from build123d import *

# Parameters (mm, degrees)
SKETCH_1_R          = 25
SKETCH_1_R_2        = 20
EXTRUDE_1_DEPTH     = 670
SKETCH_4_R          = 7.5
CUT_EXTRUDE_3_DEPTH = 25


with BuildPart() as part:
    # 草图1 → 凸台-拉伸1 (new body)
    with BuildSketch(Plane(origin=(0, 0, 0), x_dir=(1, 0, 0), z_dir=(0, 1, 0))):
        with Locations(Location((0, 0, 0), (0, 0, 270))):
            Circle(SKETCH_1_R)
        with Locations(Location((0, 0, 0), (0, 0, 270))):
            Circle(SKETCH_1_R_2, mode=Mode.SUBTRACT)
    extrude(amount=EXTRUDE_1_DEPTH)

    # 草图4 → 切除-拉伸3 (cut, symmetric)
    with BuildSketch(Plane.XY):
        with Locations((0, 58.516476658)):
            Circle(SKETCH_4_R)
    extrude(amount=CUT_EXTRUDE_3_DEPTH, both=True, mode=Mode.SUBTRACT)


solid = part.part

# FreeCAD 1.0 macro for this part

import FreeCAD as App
import Part
import Sketcher
from FreeCAD import Vector
Q = App.Units.Quantity

doc = App.newDocument("Part")
params = doc.addObject("Spreadsheet::Sheet", "Params")
for row, (alias, value) in enumerate([
    ("sketch1_diameter", "50 mm"),
    ("sketch1_diameter2", "40 mm"),
    ("pad1_length", "670 mm"),
    ("sketch2_diameter", "15 mm"),
    ("pocket1_length", "50 mm"),
], start=1):
    params.set(f"A{row}", alias)
    params.set(f"B{row}", "=" + value)
    params.setAlias(f"B{row}", alias)

body = doc.addObject("PartDesign::Body", "Body")

# Sketch on XZ plane
sketch1 = body.newObject("Sketcher::SketchObject", "Sketch")
sketch1.AttachmentSupport = (doc.getObject("XZ_Plane"), [""])
sketch1.MapMode = "FlatFace"
sketch1.addGeometry(Part.Circle(Vector(0, 0, 0), Vector(0, 0, 1), 25), False)
sketch1.addGeometry(Part.Circle(Vector(0, 0, 0), Vector(0, 0, 1), 20), False)
sketch1.addConstraint(Sketcher.Constraint("Coincident", 0, 3, -1, 1))
sketch1.addConstraint(Sketcher.Constraint("Coincident", 1, 3, -1, 1))
sketch1.addConstraint(Sketcher.Constraint("Diameter", 0, Q("50 mm")))
sketch1.addConstraint(Sketcher.Constraint("Diameter", 1, Q("40 mm")))
sketch1.setExpression("Constraints[2]", "Params.sketch1_diameter")
sketch1.setExpression("Constraints[3]", "Params.sketch1_diameter2")
pad1 = body.newObject("PartDesign::Pad", "Pad")
pad1.Profile = sketch1
pad1.setExpression("Length", "Params.pad1_length")
pad1.Reversed = True

# Sketch on XY plane
sketch2 = body.newObject("Sketcher::SketchObject", "Sketch001")
sketch2.AttachmentSupport = (doc.getObject("XY_Plane"), [""])
sketch2.MapMode = "FlatFace"
sketch2.addGeometry(Part.Circle(Vector(0, 59, 0), Vector(0, 0, 1), 8), False)
sketch2.addConstraint(Sketcher.Constraint("PointOnObject", 0, 3, -2))
sketch2.addConstraint(Sketcher.Constraint("Diameter", 0, Q("15 mm")))
sketch2.addConstraint(Sketcher.Constraint("DistanceY", -1, 1, 0, 3, Q("58.516477 mm")))
sketch2.setExpression("Constraints[1]", "Params.sketch2_diameter")
pocket1 = body.newObject("PartDesign::Pocket", "Pocket")
pocket1.Profile = sketch2
pocket1.setExpression("Length", "Params.pocket1_length")
pocket1.Midplane = True

doc.recompute()
